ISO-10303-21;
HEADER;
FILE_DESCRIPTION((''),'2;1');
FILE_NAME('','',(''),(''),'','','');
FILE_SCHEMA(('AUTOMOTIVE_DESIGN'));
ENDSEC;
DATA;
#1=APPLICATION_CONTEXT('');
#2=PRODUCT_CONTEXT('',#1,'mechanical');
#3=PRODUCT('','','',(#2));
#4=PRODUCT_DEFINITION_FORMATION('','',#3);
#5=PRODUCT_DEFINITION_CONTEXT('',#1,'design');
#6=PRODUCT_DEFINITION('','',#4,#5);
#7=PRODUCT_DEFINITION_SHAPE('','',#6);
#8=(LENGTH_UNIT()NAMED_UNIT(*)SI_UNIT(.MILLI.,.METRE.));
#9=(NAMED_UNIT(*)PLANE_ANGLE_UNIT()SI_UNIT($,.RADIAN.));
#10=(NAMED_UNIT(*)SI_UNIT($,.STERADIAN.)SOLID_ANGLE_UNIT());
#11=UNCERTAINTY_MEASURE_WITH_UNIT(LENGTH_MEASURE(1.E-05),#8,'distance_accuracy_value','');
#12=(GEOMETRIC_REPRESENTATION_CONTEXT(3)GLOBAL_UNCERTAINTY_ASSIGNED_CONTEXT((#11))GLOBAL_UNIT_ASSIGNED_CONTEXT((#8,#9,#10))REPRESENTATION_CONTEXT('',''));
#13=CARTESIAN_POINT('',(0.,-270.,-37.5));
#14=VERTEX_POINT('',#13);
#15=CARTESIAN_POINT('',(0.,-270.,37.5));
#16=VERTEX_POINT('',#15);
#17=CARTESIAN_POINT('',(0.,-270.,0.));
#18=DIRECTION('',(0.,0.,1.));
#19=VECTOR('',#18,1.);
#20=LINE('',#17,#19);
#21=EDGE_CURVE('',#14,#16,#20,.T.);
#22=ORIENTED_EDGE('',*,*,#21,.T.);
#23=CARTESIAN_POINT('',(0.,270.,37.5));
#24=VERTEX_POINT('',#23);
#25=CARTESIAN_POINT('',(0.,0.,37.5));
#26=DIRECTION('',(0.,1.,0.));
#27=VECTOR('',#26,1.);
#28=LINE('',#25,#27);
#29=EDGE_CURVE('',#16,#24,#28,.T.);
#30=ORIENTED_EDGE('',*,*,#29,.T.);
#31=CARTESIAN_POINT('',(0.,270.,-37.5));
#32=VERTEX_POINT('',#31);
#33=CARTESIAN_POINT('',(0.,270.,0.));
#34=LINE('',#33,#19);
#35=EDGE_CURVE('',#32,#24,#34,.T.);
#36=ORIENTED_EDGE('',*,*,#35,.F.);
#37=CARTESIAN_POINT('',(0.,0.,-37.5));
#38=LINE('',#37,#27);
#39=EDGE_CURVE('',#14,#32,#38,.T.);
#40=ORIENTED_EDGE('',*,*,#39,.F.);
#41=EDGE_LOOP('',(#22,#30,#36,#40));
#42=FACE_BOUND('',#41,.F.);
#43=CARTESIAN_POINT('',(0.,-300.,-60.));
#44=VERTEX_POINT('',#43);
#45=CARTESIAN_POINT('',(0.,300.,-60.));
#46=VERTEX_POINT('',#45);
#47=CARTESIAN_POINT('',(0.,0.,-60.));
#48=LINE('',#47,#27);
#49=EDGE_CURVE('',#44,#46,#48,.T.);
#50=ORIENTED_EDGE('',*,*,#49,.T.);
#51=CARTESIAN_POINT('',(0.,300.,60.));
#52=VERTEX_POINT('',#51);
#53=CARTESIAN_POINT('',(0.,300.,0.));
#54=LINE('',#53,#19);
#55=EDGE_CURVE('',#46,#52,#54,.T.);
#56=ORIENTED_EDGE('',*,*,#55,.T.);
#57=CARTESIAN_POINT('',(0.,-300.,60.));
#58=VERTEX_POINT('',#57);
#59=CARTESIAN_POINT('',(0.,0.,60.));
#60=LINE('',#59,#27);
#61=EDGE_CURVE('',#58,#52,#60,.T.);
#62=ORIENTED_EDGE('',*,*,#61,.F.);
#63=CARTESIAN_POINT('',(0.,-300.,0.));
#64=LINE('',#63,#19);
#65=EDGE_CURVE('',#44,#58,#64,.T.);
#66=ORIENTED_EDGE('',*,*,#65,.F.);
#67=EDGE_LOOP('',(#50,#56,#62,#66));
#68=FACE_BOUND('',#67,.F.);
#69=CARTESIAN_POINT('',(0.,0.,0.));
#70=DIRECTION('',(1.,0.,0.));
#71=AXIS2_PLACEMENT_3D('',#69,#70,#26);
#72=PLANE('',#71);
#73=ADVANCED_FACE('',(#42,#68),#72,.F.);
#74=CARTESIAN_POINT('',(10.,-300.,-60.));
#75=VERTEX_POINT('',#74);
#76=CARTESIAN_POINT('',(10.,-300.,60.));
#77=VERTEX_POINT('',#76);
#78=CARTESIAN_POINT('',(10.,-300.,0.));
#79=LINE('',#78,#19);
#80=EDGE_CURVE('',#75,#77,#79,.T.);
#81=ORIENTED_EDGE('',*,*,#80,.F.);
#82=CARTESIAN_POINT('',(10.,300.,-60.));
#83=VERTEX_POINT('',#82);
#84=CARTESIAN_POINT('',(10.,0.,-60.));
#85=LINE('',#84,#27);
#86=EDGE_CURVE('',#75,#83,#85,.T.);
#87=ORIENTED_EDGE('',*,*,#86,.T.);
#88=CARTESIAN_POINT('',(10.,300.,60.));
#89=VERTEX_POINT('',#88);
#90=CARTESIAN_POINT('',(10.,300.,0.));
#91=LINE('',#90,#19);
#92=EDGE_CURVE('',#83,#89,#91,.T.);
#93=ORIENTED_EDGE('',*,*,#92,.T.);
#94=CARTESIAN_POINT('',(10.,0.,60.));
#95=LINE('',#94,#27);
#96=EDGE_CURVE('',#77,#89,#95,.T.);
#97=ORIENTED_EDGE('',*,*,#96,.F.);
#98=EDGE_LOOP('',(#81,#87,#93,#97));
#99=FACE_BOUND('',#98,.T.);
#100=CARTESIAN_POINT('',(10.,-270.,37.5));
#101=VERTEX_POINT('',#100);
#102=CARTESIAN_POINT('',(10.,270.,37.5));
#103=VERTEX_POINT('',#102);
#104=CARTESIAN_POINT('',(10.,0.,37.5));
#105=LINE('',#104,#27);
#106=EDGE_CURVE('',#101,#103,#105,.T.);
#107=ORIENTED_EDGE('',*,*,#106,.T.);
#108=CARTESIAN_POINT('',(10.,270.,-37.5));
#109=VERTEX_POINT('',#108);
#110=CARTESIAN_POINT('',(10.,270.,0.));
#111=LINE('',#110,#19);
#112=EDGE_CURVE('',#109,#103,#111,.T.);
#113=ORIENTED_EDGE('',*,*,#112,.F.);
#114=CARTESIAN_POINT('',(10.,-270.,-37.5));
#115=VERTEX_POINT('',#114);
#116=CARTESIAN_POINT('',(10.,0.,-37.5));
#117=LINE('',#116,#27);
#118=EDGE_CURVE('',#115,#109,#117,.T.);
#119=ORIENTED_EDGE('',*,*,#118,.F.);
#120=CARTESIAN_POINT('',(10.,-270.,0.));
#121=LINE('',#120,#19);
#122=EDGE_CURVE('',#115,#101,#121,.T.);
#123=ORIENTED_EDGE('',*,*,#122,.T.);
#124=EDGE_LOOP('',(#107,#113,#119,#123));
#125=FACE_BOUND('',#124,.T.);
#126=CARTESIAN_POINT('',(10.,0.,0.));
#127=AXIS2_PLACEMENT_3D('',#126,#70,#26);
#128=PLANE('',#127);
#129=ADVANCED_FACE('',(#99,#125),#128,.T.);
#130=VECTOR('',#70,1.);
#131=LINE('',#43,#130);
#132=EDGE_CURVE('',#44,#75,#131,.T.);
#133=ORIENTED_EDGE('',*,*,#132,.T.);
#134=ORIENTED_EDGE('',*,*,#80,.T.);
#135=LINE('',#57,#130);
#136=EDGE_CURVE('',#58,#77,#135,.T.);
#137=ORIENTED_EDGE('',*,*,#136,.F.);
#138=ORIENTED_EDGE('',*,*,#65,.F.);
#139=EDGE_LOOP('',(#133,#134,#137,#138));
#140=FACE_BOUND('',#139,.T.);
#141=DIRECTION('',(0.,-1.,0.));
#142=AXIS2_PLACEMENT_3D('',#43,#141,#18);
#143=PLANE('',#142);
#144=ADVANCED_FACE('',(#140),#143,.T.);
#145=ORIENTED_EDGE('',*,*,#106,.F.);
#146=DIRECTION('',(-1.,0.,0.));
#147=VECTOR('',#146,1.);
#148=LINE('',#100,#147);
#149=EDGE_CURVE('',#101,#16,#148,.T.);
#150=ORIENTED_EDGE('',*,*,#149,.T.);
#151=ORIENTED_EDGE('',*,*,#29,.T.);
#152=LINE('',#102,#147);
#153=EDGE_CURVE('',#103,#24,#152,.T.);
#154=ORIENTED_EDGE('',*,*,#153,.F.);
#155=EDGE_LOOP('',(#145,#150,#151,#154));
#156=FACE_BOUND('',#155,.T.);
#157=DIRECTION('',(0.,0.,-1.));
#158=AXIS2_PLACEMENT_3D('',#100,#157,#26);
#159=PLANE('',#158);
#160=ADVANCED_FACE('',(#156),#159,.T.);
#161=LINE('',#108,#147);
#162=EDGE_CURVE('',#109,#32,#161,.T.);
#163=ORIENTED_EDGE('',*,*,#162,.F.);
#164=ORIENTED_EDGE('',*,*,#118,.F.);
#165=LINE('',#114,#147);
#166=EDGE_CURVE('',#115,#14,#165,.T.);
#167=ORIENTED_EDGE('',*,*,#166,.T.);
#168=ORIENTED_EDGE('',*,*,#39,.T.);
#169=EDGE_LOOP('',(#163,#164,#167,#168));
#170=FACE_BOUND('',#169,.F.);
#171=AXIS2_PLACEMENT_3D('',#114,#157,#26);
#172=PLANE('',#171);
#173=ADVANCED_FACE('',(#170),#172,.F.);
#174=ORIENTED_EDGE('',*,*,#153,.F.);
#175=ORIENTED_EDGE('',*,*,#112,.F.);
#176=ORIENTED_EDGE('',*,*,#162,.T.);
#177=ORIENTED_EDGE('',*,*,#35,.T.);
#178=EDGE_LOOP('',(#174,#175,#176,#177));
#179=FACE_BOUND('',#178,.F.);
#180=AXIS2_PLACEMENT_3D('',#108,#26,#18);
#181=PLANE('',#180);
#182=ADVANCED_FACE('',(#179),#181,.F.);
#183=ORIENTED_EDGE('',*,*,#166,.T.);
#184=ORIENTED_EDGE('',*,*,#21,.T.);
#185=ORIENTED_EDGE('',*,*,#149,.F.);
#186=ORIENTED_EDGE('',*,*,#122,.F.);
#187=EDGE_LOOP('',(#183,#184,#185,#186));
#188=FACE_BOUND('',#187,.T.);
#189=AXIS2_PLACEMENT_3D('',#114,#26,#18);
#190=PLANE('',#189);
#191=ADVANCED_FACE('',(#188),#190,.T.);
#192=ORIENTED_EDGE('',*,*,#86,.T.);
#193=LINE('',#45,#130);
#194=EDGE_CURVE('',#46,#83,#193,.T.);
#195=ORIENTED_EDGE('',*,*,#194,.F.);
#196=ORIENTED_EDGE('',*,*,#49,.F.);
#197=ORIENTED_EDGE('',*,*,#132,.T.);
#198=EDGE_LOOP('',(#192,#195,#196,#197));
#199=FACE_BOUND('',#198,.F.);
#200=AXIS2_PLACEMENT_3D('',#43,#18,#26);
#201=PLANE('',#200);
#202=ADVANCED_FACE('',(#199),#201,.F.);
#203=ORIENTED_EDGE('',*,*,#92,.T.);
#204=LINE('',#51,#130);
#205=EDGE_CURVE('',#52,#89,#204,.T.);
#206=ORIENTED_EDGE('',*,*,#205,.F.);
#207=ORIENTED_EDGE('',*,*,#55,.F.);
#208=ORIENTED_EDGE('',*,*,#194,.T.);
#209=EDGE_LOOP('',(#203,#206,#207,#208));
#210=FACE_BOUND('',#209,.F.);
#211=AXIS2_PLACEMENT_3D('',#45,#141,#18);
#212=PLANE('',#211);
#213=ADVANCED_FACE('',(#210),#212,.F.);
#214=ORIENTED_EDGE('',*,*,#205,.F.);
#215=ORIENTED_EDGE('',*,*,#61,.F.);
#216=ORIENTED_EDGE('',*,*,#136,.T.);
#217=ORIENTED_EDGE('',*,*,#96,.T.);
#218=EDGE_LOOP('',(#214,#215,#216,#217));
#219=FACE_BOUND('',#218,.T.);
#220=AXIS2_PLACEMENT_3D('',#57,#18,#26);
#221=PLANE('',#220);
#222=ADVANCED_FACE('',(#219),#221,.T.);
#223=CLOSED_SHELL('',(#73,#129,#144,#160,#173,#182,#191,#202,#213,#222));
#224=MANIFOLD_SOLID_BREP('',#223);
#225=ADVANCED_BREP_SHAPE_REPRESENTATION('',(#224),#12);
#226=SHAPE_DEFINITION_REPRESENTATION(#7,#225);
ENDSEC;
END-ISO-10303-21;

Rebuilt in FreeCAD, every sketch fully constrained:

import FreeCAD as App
import Part
import Sketcher
from FreeCAD import Vector


def add_polygon(sketch, points):
    """Adds a closed chain of lines whose ends are joined by coincident constraints."""
    first, n = sketch.GeometryCount, len(points)
    for a, b in zip(points, points[1:] + points[:1]):
        sketch.addGeometry(Part.LineSegment(App.Vector(*a, 0), App.Vector(*b, 0)), False)
    for i in range(n):
        sketch.addConstraint(Sketcher.Constraint("Coincident", first + i, 2, first + (i + 1) % n, 1))

doc = App.newDocument("Part")
params = doc.addObject("Spreadsheet::Sheet", "Params")
for row, (alias, value) in enumerate([
    ("sketch1_width", "600 mm"),
    ("sketch1_height", "120 mm"),
    ("pad1_length", "10 mm"),
    ("sketch2_width", "540 mm"),
    ("sketch2_height", "75 mm"),
    ("pocket1_length", "10 mm"),
], start=1):
    params.set(f"A{row}", alias)
    params.set(f"B{row}", "=" + value)
    params.setAlias(f"B{row}", alias)

body = doc.addObject("PartDesign::Body", "Body")

# Sketch on YZ plane
sketch1 = doc.addObject("Sketcher::SketchObject", "Sketch")
body.addObject(sketch1)
sketch1.AttachmentSupport = (doc.YZ_Plane, [""])
sketch1.MapMode = "FlatFace"
add_polygon(sketch1, [(-300, 60), (-300, -60), (300, -60), (300, 60)])  # lines 0-3
sketch1.addConstraint([
    Sketcher.Constraint("Vertical", 0),
    Sketcher.Constraint("Horizontal", 1),
    Sketcher.Constraint("Vertical", 2),
    Sketcher.Constraint("Horizontal", 3),
    Sketcher.Constraint("Symmetric", 0, 2, 2, 2, -1, 1),
    Sketcher.Constraint("DistanceX", 1, 1, 1, 2, 600.0),
    Sketcher.Constraint("DistanceY", 0, 2, 0, 1, 120.0),
])
sketch1.setExpression("Constraints[9]", "Params.sketch1_width")
sketch1.setExpression("Constraints[10]", "Params.sketch1_height")
pad1 = doc.addObject("PartDesign::Pad", "Pad")
body.addObject(pad1)
pad1.Profile = sketch1
pad1.setExpression("Length", "Params.pad1_length")

# Sketch on YZ plane
sketch2 = doc.addObject("Sketcher::SketchObject", "Sketch001")
body.addObject(sketch2)
sketch2.AttachmentSupport = (doc.YZ_Plane, [""])
sketch2.MapMode = "FlatFace"
sketch2.AttachmentOffset = App.Placement(Vector(0, 0, 10), App.Rotation())
add_polygon(sketch2, [(-270, 38), (-270, -38), (270, -38), (270, 38)])  # lines 0-3
sketch2.addConstraint([
    Sketcher.Constraint("Vertical", 0),
    Sketcher.Constraint("Horizontal", 1),
    Sketcher.Constraint("Vertical", 2),
    Sketcher.Constraint("Horizontal", 3),
    Sketcher.Constraint("Symmetric", 0, 2, 2, 2, -1, 1),
    Sketcher.Constraint("DistanceX", 1, 1, 1, 2, 540.0),
    Sketcher.Constraint("DistanceY", 0, 2, 0, 1, 75.0),
])
sketch2.setExpression("Constraints[9]", "Params.sketch2_width")
sketch2.setExpression("Constraints[10]", "Params.sketch2_height")
pocket1 = doc.addObject("PartDesign::Pocket", "Pocket")
body.addObject(pocket1)
pocket1.Profile = sketch2
pocket1.setExpression("Length", "Params.pocket1_length")

doc.recompute()
